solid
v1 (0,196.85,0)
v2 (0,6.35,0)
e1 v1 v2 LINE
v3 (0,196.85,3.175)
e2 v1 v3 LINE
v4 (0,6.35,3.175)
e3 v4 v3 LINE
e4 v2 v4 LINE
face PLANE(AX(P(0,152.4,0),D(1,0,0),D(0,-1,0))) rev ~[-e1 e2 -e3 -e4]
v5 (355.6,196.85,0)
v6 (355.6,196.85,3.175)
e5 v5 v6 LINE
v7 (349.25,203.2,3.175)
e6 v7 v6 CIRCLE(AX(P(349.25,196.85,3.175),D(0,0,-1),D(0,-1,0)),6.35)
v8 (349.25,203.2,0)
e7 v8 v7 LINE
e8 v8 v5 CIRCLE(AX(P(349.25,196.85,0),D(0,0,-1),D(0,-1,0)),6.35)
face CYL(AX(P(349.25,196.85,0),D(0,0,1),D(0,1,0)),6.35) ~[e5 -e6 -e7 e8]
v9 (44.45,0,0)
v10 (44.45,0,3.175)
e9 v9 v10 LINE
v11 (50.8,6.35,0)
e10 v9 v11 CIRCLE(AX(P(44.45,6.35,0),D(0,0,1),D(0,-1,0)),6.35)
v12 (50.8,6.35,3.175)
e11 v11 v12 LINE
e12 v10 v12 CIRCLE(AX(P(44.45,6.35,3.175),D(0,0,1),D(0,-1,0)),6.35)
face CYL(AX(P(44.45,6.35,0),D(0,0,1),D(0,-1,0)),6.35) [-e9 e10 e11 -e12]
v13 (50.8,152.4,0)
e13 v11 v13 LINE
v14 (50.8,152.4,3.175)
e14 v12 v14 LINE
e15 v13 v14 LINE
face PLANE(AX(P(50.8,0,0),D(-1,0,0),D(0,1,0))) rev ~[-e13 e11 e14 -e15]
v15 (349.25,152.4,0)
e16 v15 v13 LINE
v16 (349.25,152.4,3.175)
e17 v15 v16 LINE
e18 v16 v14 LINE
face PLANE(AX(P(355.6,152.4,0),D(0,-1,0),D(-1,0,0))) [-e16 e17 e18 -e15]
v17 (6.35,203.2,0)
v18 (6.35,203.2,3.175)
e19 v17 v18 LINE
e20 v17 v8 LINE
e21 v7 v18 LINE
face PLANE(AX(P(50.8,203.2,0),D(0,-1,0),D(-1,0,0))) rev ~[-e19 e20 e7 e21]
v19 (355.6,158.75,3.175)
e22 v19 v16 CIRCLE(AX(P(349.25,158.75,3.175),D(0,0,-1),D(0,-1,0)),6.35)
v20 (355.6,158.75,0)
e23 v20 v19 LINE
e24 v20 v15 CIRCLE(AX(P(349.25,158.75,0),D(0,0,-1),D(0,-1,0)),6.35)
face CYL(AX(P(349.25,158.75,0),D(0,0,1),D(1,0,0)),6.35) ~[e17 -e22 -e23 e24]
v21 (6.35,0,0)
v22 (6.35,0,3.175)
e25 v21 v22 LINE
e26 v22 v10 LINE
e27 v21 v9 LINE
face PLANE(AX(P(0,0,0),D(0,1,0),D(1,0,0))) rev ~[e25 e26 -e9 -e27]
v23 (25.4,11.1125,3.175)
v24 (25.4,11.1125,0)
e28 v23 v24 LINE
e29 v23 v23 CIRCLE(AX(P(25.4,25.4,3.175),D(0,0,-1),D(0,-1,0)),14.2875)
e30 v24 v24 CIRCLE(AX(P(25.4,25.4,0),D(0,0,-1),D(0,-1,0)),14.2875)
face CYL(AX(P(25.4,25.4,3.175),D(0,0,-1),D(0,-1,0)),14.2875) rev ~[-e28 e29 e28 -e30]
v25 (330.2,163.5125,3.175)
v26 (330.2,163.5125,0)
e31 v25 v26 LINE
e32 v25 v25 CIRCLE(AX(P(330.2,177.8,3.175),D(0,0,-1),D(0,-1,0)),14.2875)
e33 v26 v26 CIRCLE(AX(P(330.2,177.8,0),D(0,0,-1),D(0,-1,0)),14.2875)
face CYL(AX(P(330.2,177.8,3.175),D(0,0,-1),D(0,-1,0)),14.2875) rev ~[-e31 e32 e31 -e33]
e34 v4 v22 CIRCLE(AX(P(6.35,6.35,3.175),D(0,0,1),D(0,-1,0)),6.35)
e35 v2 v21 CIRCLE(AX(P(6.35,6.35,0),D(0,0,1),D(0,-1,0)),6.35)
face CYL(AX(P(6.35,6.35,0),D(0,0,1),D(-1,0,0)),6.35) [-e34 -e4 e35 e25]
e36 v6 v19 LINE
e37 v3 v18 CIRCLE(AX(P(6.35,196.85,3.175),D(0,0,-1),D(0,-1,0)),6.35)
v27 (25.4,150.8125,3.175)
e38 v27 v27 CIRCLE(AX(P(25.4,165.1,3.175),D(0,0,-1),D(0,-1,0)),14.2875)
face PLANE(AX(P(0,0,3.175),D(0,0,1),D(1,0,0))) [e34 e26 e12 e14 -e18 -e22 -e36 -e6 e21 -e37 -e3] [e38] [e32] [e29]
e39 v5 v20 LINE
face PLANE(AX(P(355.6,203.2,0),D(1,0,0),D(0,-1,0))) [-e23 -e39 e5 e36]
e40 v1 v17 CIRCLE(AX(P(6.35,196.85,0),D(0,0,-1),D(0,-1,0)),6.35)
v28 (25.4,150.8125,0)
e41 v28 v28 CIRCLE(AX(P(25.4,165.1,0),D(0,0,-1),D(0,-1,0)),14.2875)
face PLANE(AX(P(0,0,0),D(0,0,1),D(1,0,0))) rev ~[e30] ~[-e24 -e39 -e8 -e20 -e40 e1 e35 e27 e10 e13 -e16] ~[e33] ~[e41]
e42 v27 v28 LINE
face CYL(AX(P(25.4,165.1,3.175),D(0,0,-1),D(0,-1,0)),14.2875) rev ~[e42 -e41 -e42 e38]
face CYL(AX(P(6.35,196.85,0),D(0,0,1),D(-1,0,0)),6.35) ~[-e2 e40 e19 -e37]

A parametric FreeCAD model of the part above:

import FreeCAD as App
import Part
import Sketcher
Q = App.Units.Quantity


def edges_at(feature, points):
    """Names of the edges that pass closest to the given points."""
    edges = feature.Shape.Edges
    near = lambda p: min(range(len(edges)), key=lambda i: edges[i].distToShape(Part.Vertex(*p))[0])
    return sorted({f"Edge{near(p) + 1}" for p in points})


def add_polygon(sketch, points):
    """Adds a closed chain of lines whose ends are joined by coincident constraints."""
    first, n = sketch.GeometryCount, len(points)
    for a, b in zip(points, points[1:] + points[:1]):
        sketch.addGeometry(Part.LineSegment(App.Vector(*a, 0), App.Vector(*b, 0)), False)
    for i in range(n):
        sketch.addConstraint(Sketcher.Constraint("Coincident", first + i, 2, first + (i + 1) % n, 1))

doc = App.newDocument("Part")
body = doc.addObject("PartDesign::Body", "Body")

# Sketch on XY plane
sketch1 = doc.addObject("Sketcher::SketchObject", "Sketch")
body.addObject(sketch1)
sketch1.AttachmentSupport = (doc.XY_Plane, [""])
sketch1.MapMode = "FlatFace"
add_polygon(sketch1, [(0, 203), (0, 0), (51, 0), (51, 152), (356, 152), (356, 203)])  # lines 0-5
sketch1.addConstraint([
    Sketcher.Constraint("Vertical", 0),
    Sketcher.Constraint("Horizontal", 1),
    Sketcher.Constraint("Vertical", 2),
    Sketcher.Constraint("Horizontal", 3),
    Sketcher.Constraint("Vertical", 4),
    Sketcher.Constraint("Horizontal", 5),
    Sketcher.Constraint("Coincident", 0, 2, -1, 1),
    Sketcher.Constraint("Equal", 1, 4),
    Sketcher.Constraint("DistanceX", 1, 1, 1, 2, Q("2 in")),
    Sketcher.Constraint("DistanceX", 5, 2, 5, 1, Q("14 in")),
    Sketcher.Constraint("DistanceY", 0, 2, 0, 1, Q("8 in")),
])
pad1 = doc.addObject("PartDesign::Pad", "Pad")
body.addObject(pad1)
pad1.Profile = sketch1
pad1.Length = Q("0.125 in")

# Sketch on XY plane
sketch2 = doc.addObject("Sketcher::SketchObject", "Sketch001")
body.addObject(sketch2)
sketch2.AttachmentSupport = (doc.XY_Plane, [""])
sketch2.MapMode = "FlatFace"
sketch2.AttachmentOffset = App.Placement(App.Vector(0, 0, 0.125 * 25.4), App.Rotation())
sketch2.addGeometry(Part.Circle(App.Vector(25, 165, 0), App.Vector(0, 0, 1), 14), False)
sketch2.addConstraint([
    Sketcher.Constraint("Diameter", 0, Q("1.125 in")),
    Sketcher.Constraint("DistanceX", -1, 1, 0, 3, Q("1 in")),
    Sketcher.Constraint("DistanceY", -1, 1, 0, 3, Q("6.5 in")),
])
doc.recompute()
hole = doc.addObject("PartDesign::Hole", "Hole")
body.addObject(hole)
hole.Profile = sketch2
hole.ThreadType = "None"
hole.Diameter = Q("1.125 in")
hole.DepthType = "ThroughAll"

# Sketch on XY plane
sketch3 = doc.addObject("Sketcher::SketchObject", "Sketch002")
body.addObject(sketch3)
sketch3.AttachmentSupport = (doc.XY_Plane, [""])
sketch3.MapMode = "FlatFace"
sketch3.AttachmentOffset = App.Placement(App.Vector(0, 0, 0.125 * 25.4), App.Rotation())
sketch3.addGeometry(Part.Circle(App.Vector(25, 25, 0), App.Vector(0, 0, 1), 14), False)
sketch3.addConstraint([
    Sketcher.Constraint("Diameter", 0, Q("1.125 in")),
    Sketcher.Constraint("DistanceX", -1, 1, 0, 3, Q("1 in")),
    Sketcher.Constraint("DistanceY", -1, 1, 0, 3, Q("1 in")),
])
doc.recompute()
hole2 = doc.addObject("PartDesign::Hole", "Hole001")
body.addObject(hole2)
hole2.Profile = sketch3
hole2.ThreadType = "None"
hole2.Diameter = Q("1.125 in")
hole2.DepthType = "ThroughAll"
doc.recompute()

fillet = doc.addObject("PartDesign::Fillet", "Fillet")
body.addObject(fillet)
fillet.Base = (hole2, edges_at(hole2, [
    (355.6, 152.4, 1.587),
    (355.6, 203.2, 1.587),
    (50.8, 0, 1.587),
    (0, 0, 1.587),
    (0, 203.2, 1.587),
]))
fillet.Radius = Q("0.25 in")

# Sketch on XY plane
sketch4 = doc.addObject("Sketcher::SketchObject", "Sketch003")
body.addObject(sketch4)
sketch4.AttachmentSupport = (doc.XY_Plane, [""])
sketch4.MapMode = "FlatFace"
sketch4.AttachmentOffset = App.Placement(App.Vector(0, 0, 0.125 * 25.4), App.Rotation())
sketch4.addGeometry(Part.Circle(App.Vector(330, 178, 0), App.Vector(0, 0, 1), 14), False)
sketch4.addConstraint([
    Sketcher.Constraint("Diameter", 0, Q("1.125 in")),
    Sketcher.Constraint("DistanceX", -1, 1, 0, 3, Q("13 in")),
    Sketcher.Constraint("DistanceY", -1, 1, 0, 3, Q("7 in")),
])
doc.recompute()
hole3 = doc.addObject("PartDesign::Hole", "Hole002")
body.addObject(hole3)
hole3.Profile = sketch4
hole3.ThreadType = "None"
hole3.Diameter = Q("1.125 in")
hole3.DepthType = "ThroughAll"

doc.recompute()
